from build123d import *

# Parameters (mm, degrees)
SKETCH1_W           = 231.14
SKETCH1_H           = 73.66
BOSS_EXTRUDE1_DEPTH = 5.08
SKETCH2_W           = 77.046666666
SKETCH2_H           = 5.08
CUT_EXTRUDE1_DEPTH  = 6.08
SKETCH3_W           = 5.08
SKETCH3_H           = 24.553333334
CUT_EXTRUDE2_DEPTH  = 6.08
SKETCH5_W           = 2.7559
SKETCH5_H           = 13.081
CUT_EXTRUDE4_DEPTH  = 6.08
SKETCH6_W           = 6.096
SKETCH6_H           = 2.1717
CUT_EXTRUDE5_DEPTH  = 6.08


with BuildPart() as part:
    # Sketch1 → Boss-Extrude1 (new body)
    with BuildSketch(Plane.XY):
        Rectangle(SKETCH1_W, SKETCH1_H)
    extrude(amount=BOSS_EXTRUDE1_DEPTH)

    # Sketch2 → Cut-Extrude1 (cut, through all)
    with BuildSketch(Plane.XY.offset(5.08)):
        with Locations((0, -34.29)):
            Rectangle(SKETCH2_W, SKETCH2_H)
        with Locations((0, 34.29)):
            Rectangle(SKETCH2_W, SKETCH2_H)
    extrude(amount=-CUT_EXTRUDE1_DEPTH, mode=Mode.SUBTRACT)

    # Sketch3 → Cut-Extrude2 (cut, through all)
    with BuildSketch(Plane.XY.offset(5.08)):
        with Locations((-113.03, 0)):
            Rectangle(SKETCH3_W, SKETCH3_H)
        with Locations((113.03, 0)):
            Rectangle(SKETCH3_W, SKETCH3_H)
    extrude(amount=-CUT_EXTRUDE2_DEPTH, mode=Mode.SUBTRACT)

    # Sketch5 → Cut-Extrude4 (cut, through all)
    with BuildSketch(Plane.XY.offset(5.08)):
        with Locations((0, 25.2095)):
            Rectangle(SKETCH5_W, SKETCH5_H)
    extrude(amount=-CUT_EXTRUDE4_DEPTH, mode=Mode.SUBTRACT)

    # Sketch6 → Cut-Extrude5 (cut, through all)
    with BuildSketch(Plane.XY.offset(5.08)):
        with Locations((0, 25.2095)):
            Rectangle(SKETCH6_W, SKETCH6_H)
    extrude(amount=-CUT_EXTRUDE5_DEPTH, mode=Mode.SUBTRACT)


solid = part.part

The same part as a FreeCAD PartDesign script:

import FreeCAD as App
import Part
import Sketcher

V = App.Vector
Q = App.Units.Quantity


def add_polygon(sketch, points):
    """Adds a closed chain of lines whose ends are joined by coincident constraints."""
    first, n = sketch.GeometryCount, len(points)
    for a, b in zip(points, points[1:] + points[:1]):
        sketch.addGeometry(Part.LineSegment(App.Vector(*a, 0), App.Vector(*b, 0)), False)
    for i in range(n):
        sketch.addConstraint(Sketcher.Constraint("Coincident", first + i, 2, first + (i + 1) % n, 1))

doc = App.newDocument("Part")
body = doc.addObject("PartDesign::Body", "Body")

sketch1 = body.newObject("Sketcher::SketchObject", "Sketch")
sketch1.AttachmentSupport = (doc.getObject("XY_Plane"), [""])
sketch1.MapMode = "FlatFace"
add_polygon(sketch1, [(-116, 37), (-116, -37), (116, -37), (116, 37)])
sketch1.addConstraint([
    Sketcher.Constraint("Vertical", 0),
    Sketcher.Constraint("Horizontal", 1),
    Sketcher.Constraint("Vertical", 2),
    Sketcher.Constraint("Horizontal", 3),
    Sketcher.Constraint("Symmetric", 0, 2, 2, 2, -1, 1),
    Sketcher.Constraint("DistanceX", 1, 1, 1, 2, Q("9.1 in")),
    Sketcher.Constraint("DistanceY", 0, 2, 0, 1, Q("2.9 in")),
])
pad1 = body.newObject("PartDesign::Pad", "Pad")
pad1.Profile = sketch1
pad1.Length = Q("0.2 in")

sketch2 = body.newObject("Sketcher::SketchObject", "Sketch001")
sketch2.AttachmentSupport = (doc.getObject("XY_Plane"), [""])
sketch2.MapMode = "FlatFace"
sketch2.AttachmentOffset = App.Placement(V(0, 0, 0.2 * 25.4), App.Rotation())
add_polygon(sketch2, [(-39, -32), (-39, -37), (39, -37), (39, -32)])
add_polygon(sketch2, [(-39, 37), (-39, 32), (39, 32), (39, 37)])
sketch2.addConstraint([
    Sketcher.Constraint("Vertical", 0),
    Sketcher.Constraint("Horizontal", 1),
    Sketcher.Constraint("Vertical", 2),
    Sketcher.Constraint("Horizontal", 3),
    Sketcher.Constraint("Vertical", 4),
    Sketcher.Constraint("Horizontal", 5),
    Sketcher.Constraint("Vertical", 6),
    Sketcher.Constraint("Horizontal", 7),
    Sketcher.Constraint("Symmetric", 2, 2, 4, 2, -1, 1),
    Sketcher.Constraint("Symmetric", 0, 2, 6, 2, -1, 1),
    Sketcher.Constraint("Vertical", 3, 2, 4, 2),
    Sketcher.Constraint("DistanceY", 0, 2, 0, 1, Q("0.2 in")),
    Sketcher.Constraint("DistanceY", 3, 2, 4, 2, Q("2.5 in")),
    Sketcher.Constraint("DistanceX", 1, 1, 1, 2, 77.046667),
])
pocket1 = body.newObject("PartDesign::Pocket", "Pocket")
pocket1.Profile = sketch2
pocket1.Type = "ThroughAll"

sketch3 = body.newObject("Sketcher::SketchObject", "Sketch002")
sketch3.AttachmentSupport = (doc.getObject("XY_Plane"), [""])
sketch3.MapMode = "FlatFace"
sketch3.AttachmentOffset = App.Placement(V(0, 0, 0.2 * 25.4), App.Rotation())
add_polygon(sketch3, [(-116, 12), (-116, -12), (-110, -12), (-110, 12)])
add_polygon(sketch3, [(110, 12), (110, -12), (116, -12), (116, 12)])
sketch3.addConstraint([
    Sketcher.Constraint("Vertical", 0),
    Sketcher.Constraint("Horizontal", 1),
    Sketcher.Constraint("Vertical", 2),
    Sketcher.Constraint("Horizontal", 3),
    Sketcher.Constraint("Vertical", 4),
    Sketcher.Constraint("Horizontal", 5),
    Sketcher.Constraint("Vertical", 6),
    Sketcher.Constraint("Horizontal", 7),
    Sketcher.Constraint("Symmetric", 2, 2, 4, 2, -1, 1),
    Sketcher.Constraint("Symmetric", 0, 2, 6, 2, -1, 1),
    Sketcher.Constraint("Horizontal", 1, 2, 4, 2),
    Sketcher.Constraint("DistanceX", 1, 1, 1, 2, Q("0.2 in")),
    Sketcher.Constraint("DistanceX", 1, 2, 4, 2, Q("8.7 in")),
    Sketcher.Constraint("DistanceY", 0, 2, 0, 1, 24.553333),
])
pocket2 = body.newObject("PartDesign::Pocket", "Pocket001")
pocket2.Profile = sketch3
pocket2.Type = "ThroughAll"

sketch4 = body.newObject("Sketcher::SketchObject", "Sketch003")
sketch4.AttachmentSupport = (doc.getObject("XY_Plane"), [""])
sketch4.MapMode = "FlatFace"
sketch4.AttachmentOffset = App.Placement(V(0, 0, 0.2 * 25.4), App.Rotation())
add_polygon(sketch4, [(-1.4, 31.8), (-1.4, 18.7), (1.4, 18.7), (1.4, 31.8)])
sketch4.addConstraint([
    Sketcher.Constraint("Vertical", 0),
    Sketcher.Constraint("Horizontal", 1),
    Sketcher.Constraint("Vertical", 2),
    Sketcher.Constraint("Horizontal", 3),
    Sketcher.Constraint("DistanceY", 0, 2, 0, 1, Q("0.515 in")),
    Sketcher.Constraint("DistanceY", -1, 1, 2, 2, Q("1.25 in")),
    Sketcher.Constraint("DistanceX", 1, 1, 1, 2, Q("0.1085 in")),
    Sketcher.Constraint("DistanceX", 0, 2, -1, 1, 1.37795),
])
pocket3 = body.newObject("PartDesign::Pocket", "Pocket002")
pocket3.Profile = sketch4
pocket3.Type = "ThroughAll"

sketch5 = body.newObject("Sketcher::SketchObject", "Sketch004")
sketch5.AttachmentSupport = (doc.getObject("XY_Plane"), [""])
sketch5.MapMode = "FlatFace"
sketch5.AttachmentOffset = App.Placement(V(0, 0, 0.2 * 25.4), App.Rotation())
add_polygon(sketch5, [(-3, 26.3), (-3, 24.1), (3, 24.1), (3, 26.3)])
sketch5.addConstraint([
    Sketcher.Constraint("Vertical", 0),
    Sketcher.Constraint("Horizontal", 1),
    Sketcher.Constraint("Vertical", 2),
    Sketcher.Constraint("Horizontal", 3),
    Sketcher.Constraint("DistanceX", 1, 1, 1, 2, Q("0.24 in")),
    Sketcher.Constraint("DistanceX", 0, 2, -1, 1, Q("0.12 in")),
    Sketcher.Constraint("DistanceY", 0, 2, 0, 1, Q("0.0855 in")),
    Sketcher.Constraint("DistanceY", -1, 1, 0, 2, 24.12365),
])
pocket4 = body.newObject("PartDesign::Pocket", "Pocket003")
pocket4.Profile = sketch5
pocket4.Type = "ThroughAll"

doc.recompute()
